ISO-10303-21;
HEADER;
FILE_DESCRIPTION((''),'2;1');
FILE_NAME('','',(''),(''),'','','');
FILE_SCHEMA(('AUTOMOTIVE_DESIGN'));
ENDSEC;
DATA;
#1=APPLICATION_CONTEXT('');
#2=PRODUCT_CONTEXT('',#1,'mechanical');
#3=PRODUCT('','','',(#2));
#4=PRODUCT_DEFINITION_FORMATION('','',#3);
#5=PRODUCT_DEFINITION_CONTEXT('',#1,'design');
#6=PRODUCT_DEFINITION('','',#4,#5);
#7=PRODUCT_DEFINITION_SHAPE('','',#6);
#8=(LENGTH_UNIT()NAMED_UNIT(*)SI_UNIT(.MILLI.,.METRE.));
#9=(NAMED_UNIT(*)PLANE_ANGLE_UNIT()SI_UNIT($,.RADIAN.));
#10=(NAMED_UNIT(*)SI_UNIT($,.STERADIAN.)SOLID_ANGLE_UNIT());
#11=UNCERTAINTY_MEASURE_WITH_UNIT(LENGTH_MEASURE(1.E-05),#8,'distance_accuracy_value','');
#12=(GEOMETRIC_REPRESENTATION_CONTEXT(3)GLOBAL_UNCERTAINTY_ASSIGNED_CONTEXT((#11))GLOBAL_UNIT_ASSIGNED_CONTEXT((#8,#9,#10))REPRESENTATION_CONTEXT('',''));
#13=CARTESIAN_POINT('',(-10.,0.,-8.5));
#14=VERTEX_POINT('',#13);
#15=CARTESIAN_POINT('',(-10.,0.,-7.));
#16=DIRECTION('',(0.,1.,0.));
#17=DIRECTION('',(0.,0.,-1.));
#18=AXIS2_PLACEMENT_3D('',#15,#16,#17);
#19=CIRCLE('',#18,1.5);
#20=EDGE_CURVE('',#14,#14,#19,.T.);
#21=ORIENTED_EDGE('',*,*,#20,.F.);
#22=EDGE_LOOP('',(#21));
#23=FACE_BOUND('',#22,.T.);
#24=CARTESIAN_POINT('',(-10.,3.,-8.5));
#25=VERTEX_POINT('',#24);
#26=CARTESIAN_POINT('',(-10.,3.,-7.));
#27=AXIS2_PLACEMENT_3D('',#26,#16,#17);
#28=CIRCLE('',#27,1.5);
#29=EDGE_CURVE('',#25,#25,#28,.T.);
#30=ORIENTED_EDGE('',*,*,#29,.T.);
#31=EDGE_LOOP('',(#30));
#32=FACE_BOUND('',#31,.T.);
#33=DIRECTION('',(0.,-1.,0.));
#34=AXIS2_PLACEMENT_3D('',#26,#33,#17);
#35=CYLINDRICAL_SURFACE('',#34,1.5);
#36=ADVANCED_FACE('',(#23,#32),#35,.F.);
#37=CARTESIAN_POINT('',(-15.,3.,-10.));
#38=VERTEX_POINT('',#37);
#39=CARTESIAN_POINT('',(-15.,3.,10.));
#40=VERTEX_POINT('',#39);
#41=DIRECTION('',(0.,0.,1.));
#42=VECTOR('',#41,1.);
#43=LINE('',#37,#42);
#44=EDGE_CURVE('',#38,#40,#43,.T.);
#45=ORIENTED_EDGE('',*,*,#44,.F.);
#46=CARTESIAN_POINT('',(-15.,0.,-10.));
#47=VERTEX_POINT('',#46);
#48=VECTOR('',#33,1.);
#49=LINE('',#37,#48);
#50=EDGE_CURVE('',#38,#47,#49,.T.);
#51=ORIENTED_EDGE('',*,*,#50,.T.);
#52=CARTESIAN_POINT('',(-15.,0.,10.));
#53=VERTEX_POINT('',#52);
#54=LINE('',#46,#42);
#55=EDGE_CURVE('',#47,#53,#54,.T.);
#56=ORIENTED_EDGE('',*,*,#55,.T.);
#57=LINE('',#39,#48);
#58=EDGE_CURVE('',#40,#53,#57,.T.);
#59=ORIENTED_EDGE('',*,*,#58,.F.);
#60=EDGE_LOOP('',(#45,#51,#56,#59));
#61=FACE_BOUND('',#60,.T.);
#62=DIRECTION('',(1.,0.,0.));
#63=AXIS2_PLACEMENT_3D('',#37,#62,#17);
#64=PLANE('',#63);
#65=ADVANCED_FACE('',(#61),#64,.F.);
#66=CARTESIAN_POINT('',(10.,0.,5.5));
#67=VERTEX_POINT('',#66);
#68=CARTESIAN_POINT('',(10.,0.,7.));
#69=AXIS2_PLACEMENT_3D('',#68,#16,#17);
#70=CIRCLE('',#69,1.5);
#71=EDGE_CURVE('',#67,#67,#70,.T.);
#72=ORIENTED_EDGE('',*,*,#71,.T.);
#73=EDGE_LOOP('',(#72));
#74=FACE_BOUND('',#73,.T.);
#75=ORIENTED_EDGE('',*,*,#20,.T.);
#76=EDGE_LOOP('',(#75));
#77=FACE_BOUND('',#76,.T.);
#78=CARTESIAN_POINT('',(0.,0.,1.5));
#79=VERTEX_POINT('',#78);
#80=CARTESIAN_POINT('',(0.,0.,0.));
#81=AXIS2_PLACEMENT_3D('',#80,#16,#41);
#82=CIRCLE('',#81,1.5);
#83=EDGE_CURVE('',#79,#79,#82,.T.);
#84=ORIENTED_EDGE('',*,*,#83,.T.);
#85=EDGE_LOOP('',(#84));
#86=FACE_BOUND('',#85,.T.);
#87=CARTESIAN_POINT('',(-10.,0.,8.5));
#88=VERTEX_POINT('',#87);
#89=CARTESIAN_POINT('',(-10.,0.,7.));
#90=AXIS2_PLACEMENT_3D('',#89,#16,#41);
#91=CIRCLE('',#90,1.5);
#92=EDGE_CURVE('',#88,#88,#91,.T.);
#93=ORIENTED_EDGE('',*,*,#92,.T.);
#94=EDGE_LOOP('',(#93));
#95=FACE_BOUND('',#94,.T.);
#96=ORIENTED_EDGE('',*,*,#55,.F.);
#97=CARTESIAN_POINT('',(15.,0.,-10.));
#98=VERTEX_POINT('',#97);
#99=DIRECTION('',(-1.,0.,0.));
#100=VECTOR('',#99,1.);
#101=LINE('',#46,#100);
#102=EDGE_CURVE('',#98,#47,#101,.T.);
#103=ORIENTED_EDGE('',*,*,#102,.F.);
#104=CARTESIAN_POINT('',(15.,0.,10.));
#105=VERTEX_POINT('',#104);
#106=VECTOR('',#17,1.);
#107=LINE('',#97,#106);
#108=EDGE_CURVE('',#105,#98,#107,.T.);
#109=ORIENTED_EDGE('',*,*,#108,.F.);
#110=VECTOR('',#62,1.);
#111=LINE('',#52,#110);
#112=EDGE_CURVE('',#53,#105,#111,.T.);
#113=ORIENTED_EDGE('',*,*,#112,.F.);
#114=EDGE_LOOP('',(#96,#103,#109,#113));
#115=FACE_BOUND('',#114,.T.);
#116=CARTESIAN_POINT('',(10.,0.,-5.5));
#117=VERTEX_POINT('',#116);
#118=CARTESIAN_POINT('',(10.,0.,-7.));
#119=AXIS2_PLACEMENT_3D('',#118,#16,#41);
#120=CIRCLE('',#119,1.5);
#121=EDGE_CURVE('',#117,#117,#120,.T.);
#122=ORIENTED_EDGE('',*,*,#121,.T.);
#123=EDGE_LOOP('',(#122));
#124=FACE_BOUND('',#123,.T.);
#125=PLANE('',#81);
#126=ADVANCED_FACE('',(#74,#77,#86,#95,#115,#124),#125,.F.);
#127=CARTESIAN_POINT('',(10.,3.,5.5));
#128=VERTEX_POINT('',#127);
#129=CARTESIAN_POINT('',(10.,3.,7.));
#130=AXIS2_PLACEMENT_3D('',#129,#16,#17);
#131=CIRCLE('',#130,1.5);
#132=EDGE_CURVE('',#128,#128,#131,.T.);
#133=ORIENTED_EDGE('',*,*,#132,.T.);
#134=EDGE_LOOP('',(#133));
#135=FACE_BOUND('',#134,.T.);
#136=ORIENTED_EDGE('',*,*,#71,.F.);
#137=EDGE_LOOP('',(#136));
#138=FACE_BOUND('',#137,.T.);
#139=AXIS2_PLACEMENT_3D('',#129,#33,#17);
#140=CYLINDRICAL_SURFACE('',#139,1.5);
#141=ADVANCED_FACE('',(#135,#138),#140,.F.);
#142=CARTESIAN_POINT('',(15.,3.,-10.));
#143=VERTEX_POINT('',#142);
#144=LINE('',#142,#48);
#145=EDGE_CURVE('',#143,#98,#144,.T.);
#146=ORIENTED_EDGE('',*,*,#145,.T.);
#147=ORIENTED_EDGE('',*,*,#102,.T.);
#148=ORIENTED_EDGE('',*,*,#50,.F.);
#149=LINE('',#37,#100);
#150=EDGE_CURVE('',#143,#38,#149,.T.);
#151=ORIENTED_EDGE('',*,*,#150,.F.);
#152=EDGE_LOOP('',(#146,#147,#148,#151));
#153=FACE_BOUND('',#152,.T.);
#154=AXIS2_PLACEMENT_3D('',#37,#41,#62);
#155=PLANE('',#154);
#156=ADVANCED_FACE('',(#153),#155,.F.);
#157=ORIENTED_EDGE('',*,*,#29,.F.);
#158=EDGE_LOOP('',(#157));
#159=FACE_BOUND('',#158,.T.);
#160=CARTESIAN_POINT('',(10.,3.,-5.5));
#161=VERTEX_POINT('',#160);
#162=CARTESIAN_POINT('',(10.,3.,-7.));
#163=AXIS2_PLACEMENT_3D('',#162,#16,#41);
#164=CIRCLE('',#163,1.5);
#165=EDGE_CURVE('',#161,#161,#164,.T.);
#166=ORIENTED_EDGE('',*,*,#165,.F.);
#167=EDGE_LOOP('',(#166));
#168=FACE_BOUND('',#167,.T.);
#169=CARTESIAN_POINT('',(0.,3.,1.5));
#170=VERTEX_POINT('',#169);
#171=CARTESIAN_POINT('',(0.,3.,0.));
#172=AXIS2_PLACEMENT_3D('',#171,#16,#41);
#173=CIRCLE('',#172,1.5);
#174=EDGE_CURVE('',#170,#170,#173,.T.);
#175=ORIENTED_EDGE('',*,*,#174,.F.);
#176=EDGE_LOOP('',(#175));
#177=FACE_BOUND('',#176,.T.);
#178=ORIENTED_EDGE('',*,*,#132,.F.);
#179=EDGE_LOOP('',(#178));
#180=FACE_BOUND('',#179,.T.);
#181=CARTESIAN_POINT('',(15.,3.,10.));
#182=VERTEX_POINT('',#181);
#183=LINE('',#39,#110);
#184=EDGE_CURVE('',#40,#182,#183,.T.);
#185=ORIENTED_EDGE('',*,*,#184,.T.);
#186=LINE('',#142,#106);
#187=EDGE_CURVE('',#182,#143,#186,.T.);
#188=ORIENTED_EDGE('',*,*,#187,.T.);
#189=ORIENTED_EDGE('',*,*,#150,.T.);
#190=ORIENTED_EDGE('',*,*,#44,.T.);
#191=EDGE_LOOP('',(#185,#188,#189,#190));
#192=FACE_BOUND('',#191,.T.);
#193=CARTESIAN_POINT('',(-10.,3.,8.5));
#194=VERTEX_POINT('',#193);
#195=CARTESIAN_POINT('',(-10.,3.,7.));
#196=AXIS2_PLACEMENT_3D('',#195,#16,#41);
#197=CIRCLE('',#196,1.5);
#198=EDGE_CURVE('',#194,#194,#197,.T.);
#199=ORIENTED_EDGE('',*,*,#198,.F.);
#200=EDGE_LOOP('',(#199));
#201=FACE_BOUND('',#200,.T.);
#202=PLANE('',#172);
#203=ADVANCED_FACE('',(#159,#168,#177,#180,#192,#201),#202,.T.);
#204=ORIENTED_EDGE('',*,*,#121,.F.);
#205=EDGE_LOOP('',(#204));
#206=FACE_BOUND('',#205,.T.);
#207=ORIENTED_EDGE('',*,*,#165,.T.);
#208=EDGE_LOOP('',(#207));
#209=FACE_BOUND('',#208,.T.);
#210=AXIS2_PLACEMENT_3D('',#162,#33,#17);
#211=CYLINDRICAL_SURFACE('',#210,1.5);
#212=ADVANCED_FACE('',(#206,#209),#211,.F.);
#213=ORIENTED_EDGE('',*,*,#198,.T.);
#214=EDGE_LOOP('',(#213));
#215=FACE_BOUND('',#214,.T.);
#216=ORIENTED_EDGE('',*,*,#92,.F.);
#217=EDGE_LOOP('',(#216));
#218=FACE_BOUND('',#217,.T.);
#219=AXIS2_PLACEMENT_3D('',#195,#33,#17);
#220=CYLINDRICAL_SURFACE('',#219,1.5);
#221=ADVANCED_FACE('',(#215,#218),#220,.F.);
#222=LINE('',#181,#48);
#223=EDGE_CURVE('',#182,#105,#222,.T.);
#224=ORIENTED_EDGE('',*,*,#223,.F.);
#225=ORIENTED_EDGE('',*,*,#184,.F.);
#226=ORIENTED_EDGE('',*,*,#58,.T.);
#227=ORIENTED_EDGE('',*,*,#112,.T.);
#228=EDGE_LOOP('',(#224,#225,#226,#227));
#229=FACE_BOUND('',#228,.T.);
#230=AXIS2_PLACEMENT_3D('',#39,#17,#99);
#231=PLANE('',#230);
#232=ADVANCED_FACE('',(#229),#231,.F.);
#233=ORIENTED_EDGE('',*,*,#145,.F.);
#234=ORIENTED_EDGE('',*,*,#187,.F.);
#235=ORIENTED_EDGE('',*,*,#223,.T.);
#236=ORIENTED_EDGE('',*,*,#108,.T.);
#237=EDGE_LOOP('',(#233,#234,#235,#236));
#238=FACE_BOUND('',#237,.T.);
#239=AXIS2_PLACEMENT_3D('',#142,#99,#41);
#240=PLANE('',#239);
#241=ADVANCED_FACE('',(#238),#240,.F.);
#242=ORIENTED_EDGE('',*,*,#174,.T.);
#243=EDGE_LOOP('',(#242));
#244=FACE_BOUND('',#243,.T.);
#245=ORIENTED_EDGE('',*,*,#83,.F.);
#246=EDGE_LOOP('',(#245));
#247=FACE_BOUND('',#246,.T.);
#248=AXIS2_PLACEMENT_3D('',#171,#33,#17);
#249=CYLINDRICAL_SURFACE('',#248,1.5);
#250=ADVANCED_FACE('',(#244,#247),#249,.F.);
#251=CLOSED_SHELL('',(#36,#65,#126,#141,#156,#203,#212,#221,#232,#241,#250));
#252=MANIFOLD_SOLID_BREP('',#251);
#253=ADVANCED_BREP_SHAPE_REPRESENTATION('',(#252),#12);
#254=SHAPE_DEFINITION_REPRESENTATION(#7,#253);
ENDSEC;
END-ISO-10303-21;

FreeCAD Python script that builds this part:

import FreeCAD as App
import Part
import Sketcher
from FreeCAD import Vector

doc = App.newDocument("Part")
params = doc.addObject("Spreadsheet::Sheet", "Params")
for row, (alias, value) in enumerate([
    ("sketch1_diameter", "3 mm"),
    ("sketch1_width", "30 mm"),
    ("sketch1_height", "20 mm"),
    ("pad1_length", "3 mm"),
], start=1):
    params.set(f"A{row}", alias)
    params.set(f"B{row}", "=" + value)
    params.setAlias(f"B{row}", alias)

body = doc.addObject("PartDesign::Body", "Body")

# Sketch on XZ plane
sketch1 = body.newObject("Sketcher::SketchObject", "Sketch")
sketch1.AttachmentSupport = (doc.getObject("XZ_Plane"), [""])
sketch1.MapMode = "FlatFace"
sketch1.addGeometry([
    Part.LineSegment(Vector(-15, -10, 0), Vector(-15, 10, 0)),  # 0
    Part.LineSegment(Vector(-15, 10, 0), Vector(15, 10, 0)),  # 1
    Part.LineSegment(Vector(15, 10, 0), Vector(15, -10, 0)),  # 2
    Part.LineSegment(Vector(15, -10, 0), Vector(-15, -10, 0)),  # 3
    Part.Circle(Vector(-10, 7, 0), Vector(0, 0, 1), 1.5),  # 4
    Part.Circle(Vector(10, 7, 0), Vector(0, 0, 1), 1.5),  # 5
    Part.Circle(Vector(-10, -7, 0), Vector(0, 0, 1), 1.5),  # 6
    Part.Circle(Vector(0, 0, 0), Vector(0, 0, 1), 1.5),  # 7
    Part.Circle(Vector(10, -7, 0), Vector(0, 0, 1), 1.5),  # 8
], False)
sketch1.addConstraint([
    Sketcher.Constraint("Coincident", 0, 2, 1, 1),
    Sketcher.Constraint("Coincident", 1, 2, 2, 1),
    Sketcher.Constraint("Coincident", 2, 2, 3, 1),
    Sketcher.Constraint("Coincident", 3, 2, 0, 1),
    Sketcher.Constraint("Vertical", 0),
    Sketcher.Constraint("Horizontal", 1),
    Sketcher.Constraint("Vertical", 2),
    Sketcher.Constraint("Horizontal", 3),
    Sketcher.Constraint("Coincident", 7, 3, -1, 1),
    Sketcher.Constraint("Equal", 4, 5),
    Sketcher.Constraint("Equal", 5, 6),
    Sketcher.Constraint("Equal", 6, 7),
    Sketcher.Constraint("Equal", 7, 8),
    Sketcher.Constraint("Symmetric", 5, 3, 6, 3, -1, 1),
    Sketcher.Constraint("Symmetric", 4, 3, 8, 3, -1, 1),
    Sketcher.Constraint("Symmetric", 0, 2, 2, 2, -1, 1),
    Sketcher.Constraint("Symmetric", 4, 3, 5, 3, -2),
    Sketcher.Constraint("Diameter", 4, 3.0),
    Sketcher.Constraint("DistanceX", 1, 1, 1, 2, 30.0),
    Sketcher.Constraint("DistanceY", 0, 1, 0, 2, 20.0),
    Sketcher.Constraint("DistanceX", 4, 3, -1, 1, 10.0),
    Sketcher.Constraint("DistanceY", -1, 1, 4, 3, 7.0),
])
sketch1.setExpression("Constraints[17]", "Params.sketch1_diameter")
sketch1.setExpression("Constraints[18]", "Params.sketch1_width")
sketch1.setExpression("Constraints[19]", "Params.sketch1_height")
pad1 = body.newObject("PartDesign::Pad", "Pad")
pad1.Profile = sketch1
pad1.setExpression("Length", "Params.pad1_length")
pad1.Reversed = True

doc.recompute()
